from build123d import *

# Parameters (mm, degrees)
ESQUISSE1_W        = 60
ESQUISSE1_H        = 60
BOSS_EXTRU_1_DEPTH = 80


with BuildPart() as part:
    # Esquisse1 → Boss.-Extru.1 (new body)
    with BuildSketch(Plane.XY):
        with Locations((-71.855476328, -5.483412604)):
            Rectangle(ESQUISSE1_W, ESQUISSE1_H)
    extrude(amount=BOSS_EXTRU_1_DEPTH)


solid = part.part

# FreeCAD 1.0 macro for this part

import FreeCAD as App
import Part
import Sketcher
from FreeCAD import Vector
Q = App.Units.Quantity


def add_polygon(sketch, points):
    """Adds a closed chain of lines whose ends are joined by coincident constraints."""
    first, n = sketch.GeometryCount, len(points)
    for a, b in zip(points, points[1:] + points[:1]):
        sketch.addGeometry(Part.LineSegment(App.Vector(*a, 0), App.Vector(*b, 0)), False)
    for i in range(n):
        sketch.addConstraint(Sketcher.Constraint("Coincident", first + i, 2, first + (i + 1) % n, 1))

doc = App.newDocument("Part")
body = doc.addObject("PartDesign::Body", "Body")

# Sketch on XY plane
sketch1 = doc.addObject("Sketcher::SketchObject", "Sketch")
body.addObject(sketch1)
sketch1.AttachmentSupport = (doc.XY_Plane, [""])
sketch1.MapMode = "FlatFace"
add_polygon(sketch1, [(-101.855476, 24.516587), (-101.855476, -35.483413), (-41.855476, -35.483413), (-41.855476, 24.516587)])  # lines 0-3
sketch1.addConstraint(Sketcher.Constraint("Vertical", 0))
sketch1.addConstraint(Sketcher.Constraint("Horizontal", 1))
sketch1.addConstraint(Sketcher.Constraint("Vertical", 2))
sketch1.addConstraint(Sketcher.Constraint("Horizontal", 3))
sketch1.addConstraint(Sketcher.Constraint("Equal", 3, 0))
sketch1.addConstraint(Sketcher.Constraint("DistanceX", 1, 1, 1, 2, Q("60 mm")))
sketch1.addConstraint(Sketcher.Constraint("DistanceX", 0, 2, -1, 1, Q("101.855476 mm")))
sketch1.addConstraint(Sketcher.Constraint("DistanceY", 0, 2, -1, 1, Q("35.483413 mm")))
pad1 = doc.addObject("PartDesign::Pad", "Pad")
body.addObject(pad1)
pad1.Profile = sketch1
pad1.Length = 80

doc.recompute()
